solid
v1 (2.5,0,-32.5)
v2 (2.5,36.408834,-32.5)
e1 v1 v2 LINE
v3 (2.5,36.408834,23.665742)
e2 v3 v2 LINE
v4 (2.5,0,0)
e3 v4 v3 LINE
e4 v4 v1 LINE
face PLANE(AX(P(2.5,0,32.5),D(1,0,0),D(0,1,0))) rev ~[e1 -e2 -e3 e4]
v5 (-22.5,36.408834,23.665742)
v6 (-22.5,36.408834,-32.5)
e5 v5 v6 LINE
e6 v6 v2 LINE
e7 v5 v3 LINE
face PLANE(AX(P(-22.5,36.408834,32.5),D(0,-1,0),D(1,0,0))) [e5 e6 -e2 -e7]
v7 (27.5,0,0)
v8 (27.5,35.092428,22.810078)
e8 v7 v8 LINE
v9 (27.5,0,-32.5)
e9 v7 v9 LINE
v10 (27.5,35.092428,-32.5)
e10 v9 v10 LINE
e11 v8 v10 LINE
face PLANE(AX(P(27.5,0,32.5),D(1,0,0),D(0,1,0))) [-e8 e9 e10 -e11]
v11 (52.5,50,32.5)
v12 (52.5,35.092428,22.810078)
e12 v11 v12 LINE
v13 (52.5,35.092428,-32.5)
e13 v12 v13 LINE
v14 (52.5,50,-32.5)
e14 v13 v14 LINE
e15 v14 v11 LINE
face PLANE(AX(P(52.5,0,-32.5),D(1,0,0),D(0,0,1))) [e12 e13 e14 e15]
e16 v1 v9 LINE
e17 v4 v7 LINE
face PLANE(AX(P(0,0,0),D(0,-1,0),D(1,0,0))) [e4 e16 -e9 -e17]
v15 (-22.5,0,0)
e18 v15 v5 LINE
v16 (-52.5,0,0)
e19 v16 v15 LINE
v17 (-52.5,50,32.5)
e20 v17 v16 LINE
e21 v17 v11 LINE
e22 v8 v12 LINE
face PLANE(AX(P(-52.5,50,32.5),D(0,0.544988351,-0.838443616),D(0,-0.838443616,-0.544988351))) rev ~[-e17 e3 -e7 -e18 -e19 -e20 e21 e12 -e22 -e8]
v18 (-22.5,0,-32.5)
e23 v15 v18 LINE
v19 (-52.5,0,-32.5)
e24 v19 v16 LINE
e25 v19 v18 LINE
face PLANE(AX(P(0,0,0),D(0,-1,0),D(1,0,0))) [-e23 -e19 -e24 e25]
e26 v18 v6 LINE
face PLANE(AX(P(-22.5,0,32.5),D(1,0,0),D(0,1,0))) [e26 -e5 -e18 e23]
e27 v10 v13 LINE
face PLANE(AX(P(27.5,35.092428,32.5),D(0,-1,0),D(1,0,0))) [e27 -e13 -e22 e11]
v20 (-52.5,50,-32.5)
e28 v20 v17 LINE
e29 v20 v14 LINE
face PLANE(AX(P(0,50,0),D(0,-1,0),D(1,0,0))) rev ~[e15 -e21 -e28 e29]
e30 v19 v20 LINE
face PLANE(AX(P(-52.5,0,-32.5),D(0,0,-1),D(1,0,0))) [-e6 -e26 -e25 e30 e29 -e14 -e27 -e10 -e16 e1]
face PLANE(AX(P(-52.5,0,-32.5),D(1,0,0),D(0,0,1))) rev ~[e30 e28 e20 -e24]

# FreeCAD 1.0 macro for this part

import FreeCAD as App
import Part
import Sketcher

V = App.Vector


def add_polygon(sketch, points):
    """Adds a closed chain of lines whose ends are joined by coincident constraints."""
    first, n = sketch.GeometryCount, len(points)
    for a, b in zip(points, points[1:] + points[:1]):
        sketch.addGeometry(Part.LineSegment(App.Vector(*a, 0), App.Vector(*b, 0)), False)
    for i in range(n):
        sketch.addConstraint(Sketcher.Constraint("Coincident", first + i, 2, first + (i + 1) % n, 1))

doc = App.newDocument("Part")
params = doc.addObject("Spreadsheet::Sheet", "Params")
for row, (alias, value) in enumerate([
    ("sketch1_width", "105 mm"),
    ("sketch1_height", "65 mm"),
    ("pad1_length", "50 mm"),
    ("sketch2_width", "25 mm"),
    ("pocket1_length", "65 mm"),
    ("sketch3_width", "50 mm"),
    ("sketch3_height", "32.5 mm"),
    ("pocket2_length", "105 mm"),
], start=1):
    params.set(f"A{row}", alias)
    params.set(f"B{row}", "=" + value)
    params.setAlias(f"B{row}", alias)

body = doc.addObject("PartDesign::Body", "Body")

# Sketch on XZ plane
sketch1 = doc.addObject("Sketcher::SketchObject", "Sketch")
body.addObject(sketch1)
sketch1.AttachmentSupport = (doc.XZ_Plane, [""])
sketch1.MapMode = "FlatFace"
add_polygon(sketch1, [(-52, 32), (-52, -32), (52, -32), (52, 32)])  # lines 0-3
sketch1.addConstraint(Sketcher.Constraint("Vertical", 0))
sketch1.addConstraint(Sketcher.Constraint("Horizontal", 1))
sketch1.addConstraint(Sketcher.Constraint("Vertical", 2))
sketch1.addConstraint(Sketcher.Constraint("Horizontal", 3))
sketch1.addConstraint(Sketcher.Constraint("Symmetric", 0, 2, 2, 2, -1, 1))
sketch1.addConstraint(Sketcher.Constraint("DistanceX", 1, 1, 1, 2, 105.0))
sketch1.addConstraint(Sketcher.Constraint("DistanceY", 0, 2, 0, 1, 65.0))
sketch1.setExpression("Constraints[9]", "Params.sketch1_width")
sketch1.setExpression("Constraints[10]", "Params.sketch1_height")
pad1 = doc.addObject("PartDesign::Pad", "Pad")
body.addObject(pad1)
pad1.Profile = sketch1
pad1.setExpression("Length", "Params.pad1_length")
pad1.Reversed = True

# Sketch on XY plane
sketch2 = doc.addObject("Sketcher::SketchObject", "Sketch001")
body.addObject(sketch2)
sketch2.AttachmentSupport = (doc.XY_Plane, [""])
sketch2.MapMode = "FlatFace"
sketch2.AttachmentOffset = App.Placement(V(0, 0, 32.5), App.Rotation())
add_polygon(sketch2, [(28, 35), (28, 0), (52, 0), (52, 35)])  # lines 0-3
add_polygon(sketch2, [(-22, 36), (-22, 0), (2, 0), (2, 36)])  # lines 4-7
sketch2.addConstraint(Sketcher.Constraint("Vertical", 0))
sketch2.addConstraint(Sketcher.Constraint("Horizontal", 1))
sketch2.addConstraint(Sketcher.Constraint("Vertical", 2))
sketch2.addConstraint(Sketcher.Constraint("Horizontal", 3))
sketch2.addConstraint(Sketcher.Constraint("Vertical", 4))
sketch2.addConstraint(Sketcher.Constraint("Horizontal", 5))
sketch2.addConstraint(Sketcher.Constraint("Vertical", 6))
sketch2.addConstraint(Sketcher.Constraint("Horizontal", 7))
sketch2.addConstraint(Sketcher.Constraint("PointOnObject", 0, 2, -1))
sketch2.addConstraint(Sketcher.Constraint("PointOnObject", 4, 2, -1))
sketch2.addConstraint(Sketcher.Constraint("Equal", 3, 5))
sketch2.addConstraint(Sketcher.Constraint("DistanceX", 1, 1, 1, 2, 25.0))
sketch2.addConstraint(Sketcher.Constraint("DistanceX", 4, 2, 0, 2, 50.0))
sketch2.addConstraint(Sketcher.Constraint("DistanceX", -1, 1, 0, 2, 27.5))
sketch2.addConstraint(Sketcher.Constraint("DistanceY", 0, 2, 0, 1, 35.092428))
sketch2.addConstraint(Sketcher.Constraint("DistanceY", 4, 2, 4, 1, 36.408834))
sketch2.setExpression("Constraints[19]", "Params.sketch2_width")
pocket1 = doc.addObject("PartDesign::Pocket", "Pocket")
body.addObject(pocket1)
pocket1.Profile = sketch2
pocket1.setExpression("Length", "Params.pocket1_length")

# Sketch on YZ plane
sketch3 = doc.addObject("Sketcher::SketchObject", "Sketch002")
body.addObject(sketch3)
sketch3.AttachmentSupport = (doc.YZ_Plane, [""])
sketch3.MapMode = "FlatFace"
sketch3.AttachmentOffset = App.Placement(V(0, 0, -52.5), App.Rotation())
add_polygon(sketch3, [(0, 32), (50, 32), (0, 0)])  # lines 0-2
sketch3.addConstraint(Sketcher.Constraint("Horizontal", 0))
sketch3.addConstraint(Sketcher.Constraint("Vertical", 2))
sketch3.addConstraint(Sketcher.Constraint("Coincident", 1, 2, -1, 1))
sketch3.addConstraint(Sketcher.Constraint("DistanceX", 0, 1, 0, 2, 50.0))
sketch3.addConstraint(Sketcher.Constraint("DistanceY", 2, 1, 2, 2, 32.5))
sketch3.setExpression("Constraints[6]", "Params.sketch3_width")
sketch3.setExpression("Constraints[7]", "Params.sketch3_height")
pocket2 = doc.addObject("PartDesign::Pocket", "Pocket001")
body.addObject(pocket2)
pocket2.Profile = sketch3
pocket2.setExpression("Length", "Params.pocket2_length")
pocket2.Reversed = True

doc.recompute()
